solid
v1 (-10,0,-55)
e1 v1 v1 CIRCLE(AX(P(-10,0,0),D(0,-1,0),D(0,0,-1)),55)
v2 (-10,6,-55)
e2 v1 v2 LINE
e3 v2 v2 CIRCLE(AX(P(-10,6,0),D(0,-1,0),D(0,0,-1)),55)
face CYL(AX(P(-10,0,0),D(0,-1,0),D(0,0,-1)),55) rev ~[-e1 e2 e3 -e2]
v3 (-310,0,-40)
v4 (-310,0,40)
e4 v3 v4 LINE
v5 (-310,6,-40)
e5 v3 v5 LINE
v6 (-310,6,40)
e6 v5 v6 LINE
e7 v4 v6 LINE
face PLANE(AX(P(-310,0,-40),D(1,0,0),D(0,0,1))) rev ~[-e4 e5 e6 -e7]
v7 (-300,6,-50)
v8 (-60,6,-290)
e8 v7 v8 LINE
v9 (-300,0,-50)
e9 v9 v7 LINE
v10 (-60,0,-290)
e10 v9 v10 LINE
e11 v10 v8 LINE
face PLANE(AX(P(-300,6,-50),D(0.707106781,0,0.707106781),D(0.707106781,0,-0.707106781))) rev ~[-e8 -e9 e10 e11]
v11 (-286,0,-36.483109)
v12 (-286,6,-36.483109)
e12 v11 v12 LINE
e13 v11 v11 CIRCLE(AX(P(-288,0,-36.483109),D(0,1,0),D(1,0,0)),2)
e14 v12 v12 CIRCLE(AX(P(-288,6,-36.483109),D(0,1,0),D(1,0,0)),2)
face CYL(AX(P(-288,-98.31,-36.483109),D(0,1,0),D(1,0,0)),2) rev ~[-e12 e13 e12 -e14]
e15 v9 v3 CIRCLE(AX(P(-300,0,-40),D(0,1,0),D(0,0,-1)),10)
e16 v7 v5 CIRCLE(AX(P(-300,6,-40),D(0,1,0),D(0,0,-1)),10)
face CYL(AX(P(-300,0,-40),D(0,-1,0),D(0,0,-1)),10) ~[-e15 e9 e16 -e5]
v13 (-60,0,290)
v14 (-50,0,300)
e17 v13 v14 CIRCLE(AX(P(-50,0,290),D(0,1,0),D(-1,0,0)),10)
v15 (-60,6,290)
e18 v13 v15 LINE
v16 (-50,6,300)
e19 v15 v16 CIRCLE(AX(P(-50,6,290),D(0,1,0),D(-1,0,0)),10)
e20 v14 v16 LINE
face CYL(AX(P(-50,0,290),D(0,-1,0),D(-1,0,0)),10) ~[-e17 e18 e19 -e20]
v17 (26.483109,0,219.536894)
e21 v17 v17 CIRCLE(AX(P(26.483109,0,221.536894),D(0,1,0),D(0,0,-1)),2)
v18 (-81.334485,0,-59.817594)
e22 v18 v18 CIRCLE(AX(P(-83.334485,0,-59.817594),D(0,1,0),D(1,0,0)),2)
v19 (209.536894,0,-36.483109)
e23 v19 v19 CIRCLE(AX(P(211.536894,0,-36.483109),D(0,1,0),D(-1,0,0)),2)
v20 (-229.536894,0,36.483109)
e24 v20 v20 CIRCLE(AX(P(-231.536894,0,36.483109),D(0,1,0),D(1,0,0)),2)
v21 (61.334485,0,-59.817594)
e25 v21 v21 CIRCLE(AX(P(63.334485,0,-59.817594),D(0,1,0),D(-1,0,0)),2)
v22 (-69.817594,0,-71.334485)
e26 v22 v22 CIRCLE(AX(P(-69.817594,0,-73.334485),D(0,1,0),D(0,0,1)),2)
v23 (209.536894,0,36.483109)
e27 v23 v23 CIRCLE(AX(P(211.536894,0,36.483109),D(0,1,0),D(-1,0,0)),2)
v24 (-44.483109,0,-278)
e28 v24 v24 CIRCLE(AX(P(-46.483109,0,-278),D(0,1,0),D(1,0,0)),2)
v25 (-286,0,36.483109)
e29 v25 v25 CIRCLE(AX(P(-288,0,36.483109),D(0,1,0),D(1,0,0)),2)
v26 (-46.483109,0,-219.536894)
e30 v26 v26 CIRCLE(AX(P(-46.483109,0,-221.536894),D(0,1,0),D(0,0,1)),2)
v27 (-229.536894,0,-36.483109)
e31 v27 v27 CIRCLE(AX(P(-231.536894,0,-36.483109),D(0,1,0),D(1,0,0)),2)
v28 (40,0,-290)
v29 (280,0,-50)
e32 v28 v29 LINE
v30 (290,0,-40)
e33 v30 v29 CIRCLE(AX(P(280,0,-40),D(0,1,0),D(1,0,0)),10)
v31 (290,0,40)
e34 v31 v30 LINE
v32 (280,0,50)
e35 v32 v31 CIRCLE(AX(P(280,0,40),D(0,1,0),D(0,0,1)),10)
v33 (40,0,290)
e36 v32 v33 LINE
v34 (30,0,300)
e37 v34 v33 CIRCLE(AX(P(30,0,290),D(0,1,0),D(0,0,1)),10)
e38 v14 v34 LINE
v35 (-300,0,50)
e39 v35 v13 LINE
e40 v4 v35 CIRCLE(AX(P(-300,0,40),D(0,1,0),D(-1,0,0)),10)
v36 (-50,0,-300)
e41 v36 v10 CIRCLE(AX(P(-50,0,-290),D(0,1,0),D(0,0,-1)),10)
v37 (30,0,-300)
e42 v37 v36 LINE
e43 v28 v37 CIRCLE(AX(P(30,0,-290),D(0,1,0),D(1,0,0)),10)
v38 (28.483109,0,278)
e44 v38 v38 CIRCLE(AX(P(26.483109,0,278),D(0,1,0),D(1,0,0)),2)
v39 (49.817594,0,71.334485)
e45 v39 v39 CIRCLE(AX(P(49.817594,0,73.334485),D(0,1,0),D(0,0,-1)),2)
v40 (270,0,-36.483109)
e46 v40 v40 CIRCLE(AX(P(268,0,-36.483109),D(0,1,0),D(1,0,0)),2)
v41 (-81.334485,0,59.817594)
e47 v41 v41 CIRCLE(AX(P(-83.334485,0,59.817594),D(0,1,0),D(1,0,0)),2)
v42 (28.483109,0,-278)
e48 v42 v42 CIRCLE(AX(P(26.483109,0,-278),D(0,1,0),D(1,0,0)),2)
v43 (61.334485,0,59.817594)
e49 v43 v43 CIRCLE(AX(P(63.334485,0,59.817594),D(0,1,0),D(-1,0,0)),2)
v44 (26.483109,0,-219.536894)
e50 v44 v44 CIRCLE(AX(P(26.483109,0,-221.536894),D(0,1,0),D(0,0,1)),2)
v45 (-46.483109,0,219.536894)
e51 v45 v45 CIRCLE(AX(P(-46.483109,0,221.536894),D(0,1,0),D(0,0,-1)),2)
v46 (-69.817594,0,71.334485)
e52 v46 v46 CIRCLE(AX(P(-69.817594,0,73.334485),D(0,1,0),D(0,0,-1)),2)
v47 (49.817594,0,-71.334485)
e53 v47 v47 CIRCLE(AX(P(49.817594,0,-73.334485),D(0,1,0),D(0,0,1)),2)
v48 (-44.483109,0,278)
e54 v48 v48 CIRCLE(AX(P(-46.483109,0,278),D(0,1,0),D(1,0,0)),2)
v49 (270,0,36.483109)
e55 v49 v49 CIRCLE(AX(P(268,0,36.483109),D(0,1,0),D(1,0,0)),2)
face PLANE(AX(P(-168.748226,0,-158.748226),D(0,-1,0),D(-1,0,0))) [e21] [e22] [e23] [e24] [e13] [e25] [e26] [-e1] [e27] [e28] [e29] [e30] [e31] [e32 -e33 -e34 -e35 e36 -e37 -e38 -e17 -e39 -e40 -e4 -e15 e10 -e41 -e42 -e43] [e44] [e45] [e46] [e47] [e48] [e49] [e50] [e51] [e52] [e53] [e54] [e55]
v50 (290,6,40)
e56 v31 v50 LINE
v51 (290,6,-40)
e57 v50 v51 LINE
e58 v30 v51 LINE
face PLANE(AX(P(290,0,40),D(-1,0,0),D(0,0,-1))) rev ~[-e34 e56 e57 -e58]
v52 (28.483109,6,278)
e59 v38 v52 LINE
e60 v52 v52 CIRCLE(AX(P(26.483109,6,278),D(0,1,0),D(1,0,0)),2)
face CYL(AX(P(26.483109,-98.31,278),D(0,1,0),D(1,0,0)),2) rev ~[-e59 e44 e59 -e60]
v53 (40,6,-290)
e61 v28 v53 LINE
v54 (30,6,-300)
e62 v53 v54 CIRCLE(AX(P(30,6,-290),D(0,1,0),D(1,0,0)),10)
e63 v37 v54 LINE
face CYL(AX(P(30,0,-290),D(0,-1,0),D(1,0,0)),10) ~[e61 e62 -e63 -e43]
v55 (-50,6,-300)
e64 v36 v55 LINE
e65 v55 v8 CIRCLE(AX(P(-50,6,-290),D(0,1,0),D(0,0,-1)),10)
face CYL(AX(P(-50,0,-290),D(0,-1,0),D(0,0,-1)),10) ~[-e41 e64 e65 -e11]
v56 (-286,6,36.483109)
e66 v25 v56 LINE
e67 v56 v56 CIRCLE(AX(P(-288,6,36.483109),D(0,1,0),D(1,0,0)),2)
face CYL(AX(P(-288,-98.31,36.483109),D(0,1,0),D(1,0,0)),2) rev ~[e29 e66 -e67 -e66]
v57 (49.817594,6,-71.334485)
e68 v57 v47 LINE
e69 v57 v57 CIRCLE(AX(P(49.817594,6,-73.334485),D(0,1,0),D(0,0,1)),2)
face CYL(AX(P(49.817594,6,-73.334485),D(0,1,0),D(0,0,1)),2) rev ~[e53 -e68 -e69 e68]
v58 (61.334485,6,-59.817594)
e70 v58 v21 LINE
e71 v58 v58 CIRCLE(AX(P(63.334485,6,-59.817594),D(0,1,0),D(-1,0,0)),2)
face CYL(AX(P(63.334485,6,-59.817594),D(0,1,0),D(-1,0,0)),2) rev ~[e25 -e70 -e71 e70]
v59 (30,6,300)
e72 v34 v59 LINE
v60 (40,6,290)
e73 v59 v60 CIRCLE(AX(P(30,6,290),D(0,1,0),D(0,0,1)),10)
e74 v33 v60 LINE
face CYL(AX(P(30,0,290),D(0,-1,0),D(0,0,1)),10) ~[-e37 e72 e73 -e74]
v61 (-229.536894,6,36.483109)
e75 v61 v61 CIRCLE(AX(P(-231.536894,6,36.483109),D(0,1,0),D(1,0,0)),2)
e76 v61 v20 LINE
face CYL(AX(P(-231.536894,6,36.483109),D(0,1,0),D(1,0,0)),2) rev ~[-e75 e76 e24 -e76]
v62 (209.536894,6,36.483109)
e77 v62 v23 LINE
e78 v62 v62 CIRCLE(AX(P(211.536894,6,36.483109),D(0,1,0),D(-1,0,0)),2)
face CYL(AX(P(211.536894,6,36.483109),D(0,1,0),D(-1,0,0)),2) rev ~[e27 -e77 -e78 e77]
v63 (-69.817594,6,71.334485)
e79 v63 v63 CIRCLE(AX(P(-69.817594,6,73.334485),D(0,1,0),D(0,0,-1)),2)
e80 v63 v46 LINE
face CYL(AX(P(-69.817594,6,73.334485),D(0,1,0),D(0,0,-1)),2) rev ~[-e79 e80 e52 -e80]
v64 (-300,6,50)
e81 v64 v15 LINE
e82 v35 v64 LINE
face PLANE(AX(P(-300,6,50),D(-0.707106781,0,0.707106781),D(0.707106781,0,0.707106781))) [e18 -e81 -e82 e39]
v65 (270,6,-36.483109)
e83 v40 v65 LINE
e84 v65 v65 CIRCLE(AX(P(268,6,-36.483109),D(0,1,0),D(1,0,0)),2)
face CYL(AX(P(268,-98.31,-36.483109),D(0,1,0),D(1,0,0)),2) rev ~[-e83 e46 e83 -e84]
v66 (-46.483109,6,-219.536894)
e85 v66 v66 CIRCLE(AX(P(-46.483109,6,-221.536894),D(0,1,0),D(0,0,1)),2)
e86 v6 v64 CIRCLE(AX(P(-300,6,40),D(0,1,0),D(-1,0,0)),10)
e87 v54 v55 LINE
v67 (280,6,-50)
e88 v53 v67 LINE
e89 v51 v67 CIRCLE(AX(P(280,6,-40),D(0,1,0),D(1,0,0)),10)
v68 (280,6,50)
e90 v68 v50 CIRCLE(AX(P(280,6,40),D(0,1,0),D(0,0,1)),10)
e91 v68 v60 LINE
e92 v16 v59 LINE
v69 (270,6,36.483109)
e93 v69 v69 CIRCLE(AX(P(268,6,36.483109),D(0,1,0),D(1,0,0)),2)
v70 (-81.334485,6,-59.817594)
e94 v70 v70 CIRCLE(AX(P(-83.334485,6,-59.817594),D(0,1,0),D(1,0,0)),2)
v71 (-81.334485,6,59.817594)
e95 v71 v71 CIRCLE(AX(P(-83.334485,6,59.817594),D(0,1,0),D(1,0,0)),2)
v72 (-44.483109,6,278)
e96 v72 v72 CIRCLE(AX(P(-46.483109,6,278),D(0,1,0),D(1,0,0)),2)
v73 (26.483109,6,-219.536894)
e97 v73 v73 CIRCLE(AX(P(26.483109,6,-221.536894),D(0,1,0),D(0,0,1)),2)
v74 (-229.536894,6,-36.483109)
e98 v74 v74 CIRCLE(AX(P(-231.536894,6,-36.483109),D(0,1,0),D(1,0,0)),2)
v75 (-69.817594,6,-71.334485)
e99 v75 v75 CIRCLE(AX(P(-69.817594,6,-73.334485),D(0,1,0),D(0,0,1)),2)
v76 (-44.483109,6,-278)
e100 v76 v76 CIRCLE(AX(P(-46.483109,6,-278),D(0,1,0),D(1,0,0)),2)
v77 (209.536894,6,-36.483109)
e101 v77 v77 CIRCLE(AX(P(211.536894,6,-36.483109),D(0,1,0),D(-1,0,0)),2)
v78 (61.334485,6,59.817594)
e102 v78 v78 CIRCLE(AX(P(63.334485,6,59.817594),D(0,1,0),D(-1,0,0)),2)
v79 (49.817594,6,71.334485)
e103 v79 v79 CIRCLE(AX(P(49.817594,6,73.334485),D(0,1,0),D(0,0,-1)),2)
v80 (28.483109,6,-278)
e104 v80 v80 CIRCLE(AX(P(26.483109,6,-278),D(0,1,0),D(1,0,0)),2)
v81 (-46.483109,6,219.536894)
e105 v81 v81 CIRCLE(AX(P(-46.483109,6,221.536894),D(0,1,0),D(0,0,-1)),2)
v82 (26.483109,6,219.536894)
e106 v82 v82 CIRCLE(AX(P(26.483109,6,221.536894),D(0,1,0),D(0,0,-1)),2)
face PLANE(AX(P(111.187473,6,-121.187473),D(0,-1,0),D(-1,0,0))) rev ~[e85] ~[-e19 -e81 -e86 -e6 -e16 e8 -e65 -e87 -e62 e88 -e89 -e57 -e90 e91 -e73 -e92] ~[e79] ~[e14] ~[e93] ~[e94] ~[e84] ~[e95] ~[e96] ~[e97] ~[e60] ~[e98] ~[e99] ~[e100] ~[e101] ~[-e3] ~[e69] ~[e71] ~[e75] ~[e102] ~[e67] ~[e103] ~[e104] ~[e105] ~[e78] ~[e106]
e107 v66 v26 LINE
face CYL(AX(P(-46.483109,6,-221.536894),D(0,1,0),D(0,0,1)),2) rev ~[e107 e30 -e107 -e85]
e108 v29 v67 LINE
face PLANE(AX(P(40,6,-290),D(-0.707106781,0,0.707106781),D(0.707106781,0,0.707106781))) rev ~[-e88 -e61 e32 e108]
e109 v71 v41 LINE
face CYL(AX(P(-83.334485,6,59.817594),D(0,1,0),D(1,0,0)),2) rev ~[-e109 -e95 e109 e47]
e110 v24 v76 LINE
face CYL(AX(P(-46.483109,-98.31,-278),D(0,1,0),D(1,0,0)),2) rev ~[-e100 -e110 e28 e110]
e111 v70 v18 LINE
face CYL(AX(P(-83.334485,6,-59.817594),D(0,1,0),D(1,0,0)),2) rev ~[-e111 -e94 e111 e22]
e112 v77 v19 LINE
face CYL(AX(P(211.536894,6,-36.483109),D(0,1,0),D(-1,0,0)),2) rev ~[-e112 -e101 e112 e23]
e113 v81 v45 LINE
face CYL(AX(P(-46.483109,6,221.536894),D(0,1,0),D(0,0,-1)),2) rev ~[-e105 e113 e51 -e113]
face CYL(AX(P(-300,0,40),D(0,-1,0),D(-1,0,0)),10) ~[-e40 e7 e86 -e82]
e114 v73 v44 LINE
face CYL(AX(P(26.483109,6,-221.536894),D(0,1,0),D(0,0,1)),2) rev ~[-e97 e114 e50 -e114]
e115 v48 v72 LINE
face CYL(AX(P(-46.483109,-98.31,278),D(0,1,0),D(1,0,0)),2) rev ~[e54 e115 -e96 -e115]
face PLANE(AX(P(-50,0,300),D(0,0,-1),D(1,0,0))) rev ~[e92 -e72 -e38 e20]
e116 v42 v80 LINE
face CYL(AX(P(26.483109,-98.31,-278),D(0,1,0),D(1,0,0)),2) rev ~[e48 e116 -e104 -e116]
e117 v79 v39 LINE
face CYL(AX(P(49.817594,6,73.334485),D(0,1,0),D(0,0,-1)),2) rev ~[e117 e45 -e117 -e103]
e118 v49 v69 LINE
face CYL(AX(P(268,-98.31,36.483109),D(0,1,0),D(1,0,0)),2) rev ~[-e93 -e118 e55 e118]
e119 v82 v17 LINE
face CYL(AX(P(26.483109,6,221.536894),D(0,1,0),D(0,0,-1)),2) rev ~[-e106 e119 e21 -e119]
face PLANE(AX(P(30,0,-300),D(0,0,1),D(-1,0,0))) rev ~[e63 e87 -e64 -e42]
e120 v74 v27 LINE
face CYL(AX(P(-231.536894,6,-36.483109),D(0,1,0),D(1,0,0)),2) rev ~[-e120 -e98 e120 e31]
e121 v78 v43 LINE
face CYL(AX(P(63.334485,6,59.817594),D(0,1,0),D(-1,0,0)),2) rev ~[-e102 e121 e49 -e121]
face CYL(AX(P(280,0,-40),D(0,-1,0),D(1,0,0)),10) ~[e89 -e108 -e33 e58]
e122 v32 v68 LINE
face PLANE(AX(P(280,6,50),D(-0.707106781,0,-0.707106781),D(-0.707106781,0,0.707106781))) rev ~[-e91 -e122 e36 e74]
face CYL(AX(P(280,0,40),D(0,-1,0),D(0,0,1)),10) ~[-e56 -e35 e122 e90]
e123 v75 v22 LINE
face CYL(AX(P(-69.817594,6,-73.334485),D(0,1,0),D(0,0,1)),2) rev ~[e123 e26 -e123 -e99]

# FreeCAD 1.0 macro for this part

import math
import FreeCAD as App
import Part
import Sketcher
Q = App.Units.Quantity


def add_polygon(sketch, points):
    """Adds a closed chain of lines whose ends are joined by coincident constraints."""
    first, n = sketch.GeometryCount, len(points)
    for a, b in zip(points, points[1:] + points[:1]):
        sketch.addGeometry(Part.LineSegment(App.Vector(*a, 0), App.Vector(*b, 0)), False)
    for i in range(n):
        sketch.addConstraint(Sketcher.Constraint("Coincident", first + i, 2, first + (i + 1) % n, 1))

doc = App.newDocument("Part")
body = doc.addObject("PartDesign::Body", "Body")

# Sketch on XZ plane
sketch1 = body.newObject("Sketcher::SketchObject", "Sketch")
sketch1.AttachmentSupport = (doc.getObject("XZ_Plane"), [""])
sketch1.MapMode = "FlatFace"
sketch1.addGeometry([
    Part.LineSegment(App.Vector(-110, -50, 0), App.Vector(-300, -50, 0)),  # 0
    Part.ArcOfCircle(Part.Circle(App.Vector(-300, -40, 0), App.Vector(0, 0, 1), 10), math.radians(180), math.radians(270)),  # 1
    Part.LineSegment(App.Vector(-310, -40, 0), App.Vector(-310, 40, 0)),  # 2
    Part.ArcOfCircle(Part.Circle(App.Vector(-300, 40, 0), App.Vector(0, 0, 1), 10), math.radians(90), math.radians(180)),  # 3
    Part.LineSegment(App.Vector(-300, 50, 0), App.Vector(-110, 50, 0)),  # 4
    Part.LineSegment(App.Vector(-110, 50, 0), App.Vector(-60, 100, 0)),  # 5
    Part.LineSegment(App.Vector(-60, 100, 0), App.Vector(-60, 290, 0)),  # 6
    Part.ArcOfCircle(Part.Circle(App.Vector(-50, 290, 0), App.Vector(0, 0, 1), 10), math.radians(90), math.radians(180)),  # 7
    Part.LineSegment(App.Vector(-50, 300, 0), App.Vector(30, 300, 0)),  # 8
    Part.ArcOfCircle(Part.Circle(App.Vector(30, 290, 0), App.Vector(0, 0, 1), 10), math.radians(0), math.radians(90)),  # 9
    Part.LineSegment(App.Vector(40, 290, 0), App.Vector(40, 100, 0)),  # 10
    Part.LineSegment(App.Vector(40, 100, 0), App.Vector(90, 50, 0)),  # 11
    Part.LineSegment(App.Vector(90, 50, 0), App.Vector(280, 50, 0)),  # 12
    Part.ArcOfCircle(Part.Circle(App.Vector(280, 40, 0), App.Vector(0, 0, 1), 10), math.radians(0), math.radians(90)),  # 13
    Part.LineSegment(App.Vector(290, 40, 0), App.Vector(290, -40, 0)),  # 14
    Part.ArcOfCircle(Part.Circle(App.Vector(280, -40, 0), App.Vector(0, 0, 1), 10), math.radians(-90), math.radians(0)),  # 15
    Part.LineSegment(App.Vector(280, -50, 0), App.Vector(90, -50, 0)),  # 16
    Part.LineSegment(App.Vector(90, -50, 0), App.Vector(40, -100, 0)),  # 17
    Part.LineSegment(App.Vector(40, -100, 0), App.Vector(40, -290, 0)),  # 18
    Part.ArcOfCircle(Part.Circle(App.Vector(30, -290, 0), App.Vector(0, 0, 1), 10), math.radians(-90), math.radians(0)),  # 19
    Part.LineSegment(App.Vector(30, -300, 0), App.Vector(-50, -300, 0)),  # 20
    Part.ArcOfCircle(Part.Circle(App.Vector(-50, -290, 0), App.Vector(0, 0, 1), 10), math.radians(180), math.radians(270)),  # 21
    Part.LineSegment(App.Vector(-60, -290, 0), App.Vector(-60, -100, 0)),  # 22
    Part.LineSegment(App.Vector(-60, -100, 0), App.Vector(-110, -50, 0)),  # 23
], False)
sketch1.addConstraint([
    Sketcher.Constraint("Tangent", 0, 2, 1, 2),
    Sketcher.Constraint("Tangent", 1, 1, 2, 1),
    Sketcher.Constraint("Tangent", 2, 2, 3, 2),
    Sketcher.Constraint("Tangent", 3, 1, 4, 1),
    Sketcher.Constraint("Coincident", 4, 2, 5, 1),
    Sketcher.Constraint("Coincident", 5, 2, 6, 1),
    Sketcher.Constraint("Tangent", 6, 2, 7, 2),
    Sketcher.Constraint("Tangent", 7, 1, 8, 1),
    Sketcher.Constraint("Tangent", 8, 2, 9, 2),
    Sketcher.Constraint("Tangent", 9, 1, 10, 1),
    Sketcher.Constraint("Coincident", 10, 2, 11, 1),
    Sketcher.Constraint("Coincident", 11, 2, 12, 1),
    Sketcher.Constraint("Tangent", 12, 2, 13, 2),
    Sketcher.Constraint("Tangent", 13, 1, 14, 1),
    Sketcher.Constraint("Tangent", 14, 2, 15, 2),
    Sketcher.Constraint("Tangent", 15, 1, 16, 1),
    Sketcher.Constraint("Coincident", 16, 2, 17, 1),
    Sketcher.Constraint("Coincident", 17, 2, 18, 1),
    Sketcher.Constraint("Tangent", 18, 2, 19, 2),
    Sketcher.Constraint("Tangent", 19, 1, 20, 1),
    Sketcher.Constraint("Tangent", 20, 2, 21, 2),
    Sketcher.Constraint("Tangent", 21, 1, 22, 1),
    Sketcher.Constraint("Coincident", 22, 2, 23, 1),
    Sketcher.Constraint("Coincident", 23, 2, 0, 1),
    Sketcher.Constraint("Horizontal", 0),
    Sketcher.Constraint("Vertical", 2),
    Sketcher.Constraint("Horizontal", 4),
    Sketcher.Constraint("Vertical", 6),
    Sketcher.Constraint("Horizontal", 8),
    Sketcher.Constraint("Vertical", 10),
    Sketcher.Constraint("Horizontal", 12),
    Sketcher.Constraint("Vertical", 14),
    Sketcher.Constraint("Horizontal", 16),
    Sketcher.Constraint("Vertical", 18),
    Sketcher.Constraint("Horizontal", 20),
    Sketcher.Constraint("Vertical", 22),
    Sketcher.Constraint("Equal", 1, 3),
    Sketcher.Constraint("Equal", 3, 7),
    Sketcher.Constraint("Equal", 7, 9),
    Sketcher.Constraint("Equal", 9, 13),
    Sketcher.Constraint("Equal", 13, 15),
    Sketcher.Constraint("Equal", 15, 19),
    Sketcher.Constraint("Equal", 19, 21),
    Sketcher.Constraint("Symmetric", 9, 3, 19, 3, -1),
    Sketcher.Constraint("Symmetric", 11, 2, 16, 2, -1),
    Sketcher.Constraint("Symmetric", 5, 2, 22, 2, -1),
    Sketcher.Constraint("Symmetric", 4, 2, 23, 2, -1),
    Sketcher.Constraint("Perpendicular", 5, 11),
    Sketcher.Constraint("Perpendicular", 11, 17),
    Sketcher.Constraint("Perpendicular", 17, 23),
    Sketcher.Constraint("Horizontal", 3, 3, 13, 3),
    Sketcher.Constraint("Horizontal", 5, 2, 10, 2),
    Sketcher.Constraint("Equal", 4, 12),
    Sketcher.Constraint("Equal", 20, 2),
    Sketcher.Constraint("Equal", 16, 6),
    Sketcher.Constraint("Radius", 1, Q("10 mm")),
    Sketcher.Constraint("DistanceX", 0, 2, 0, 1, Q("190 mm")),
    Sketcher.Constraint("DistanceX", 8, 1, 8, 2, Q("80 mm")),
    Sketcher.Constraint("DistanceX", 1, 3, -1, 1, Q("300 mm")),
    Sketcher.Constraint("DistanceX", 7, 3, -1, 1, Q("50 mm")),
])
pad1 = body.newObject("PartDesign::Pad", "Pad")
pad1.Profile = sketch1
pad1.Length = 6
pad1.Reversed = True

# Sketch on XZ plane
sketch2 = body.newObject("Sketcher::SketchObject", "Sketch001")
sketch2.AttachmentSupport = (doc.getObject("XZ_Plane"), [""])
sketch2.MapMode = "FlatFace"
sketch2.AttachmentOffset = App.Placement(App.Vector(0, 0, -6), App.Rotation())
sketch2.addGeometry(Part.Circle(App.Vector(-10, 0, 0), App.Vector(0, 0, 1), 0.5), False)
sketch2.addConstraint([
    Sketcher.Constraint("PointOnObject", 0, 3, -1),
    Sketcher.Constraint("DistanceX", 0, 3, -1, 1, Q("10 mm")),
    Sketcher.Constraint("Diameter", 0, Q("0.991307 mm")),
])
pocket1 = body.newObject("PartDesign::Pocket", "Pocket")
pocket1.Profile = sketch2
pocket1.Length = 10
pocket1.Reversed = True

# Sketch on XZ plane
sketch3 = body.newObject("Sketcher::SketchObject", "Sketch002")
sketch3.AttachmentSupport = (doc.getObject("XZ_Plane"), [""])
sketch3.MapMode = "FlatFace"
sketch3.AttachmentOffset = App.Placement(App.Vector(0, 0, -6), App.Rotation())
add_polygon(sketch3, [(-60, -290), (-300, -50), (-250, -50), (-60, -240)])  # lines 0-3
add_polygon(sketch3, [(280, -50), (40, -290), (40, -240), (230, -50)])  # lines 4-7
add_polygon(sketch3, [(40, 290), (280, 50), (230, 49), (40, 240)])  # lines 8-11
add_polygon(sketch3, [(-300, 50), (-60, 290), (-60, 240), (-250, 50)])  # lines 12-15
sketch3.addConstraint([
    Sketcher.Constraint("Horizontal", 1),
    Sketcher.Constraint("Vertical", 3),
    Sketcher.Constraint("Vertical", 5),
    Sketcher.Constraint("Horizontal", 7),
    Sketcher.Constraint("Vertical", 11),
    Sketcher.Constraint("Vertical", 13),
    Sketcher.Constraint("Horizontal", 15),
    Sketcher.Constraint("Symmetric", 7, 2, 8, 2, -1),
    Sketcher.Constraint("Symmetric", 5, 2, 10, 2, -1),
    Sketcher.Constraint("Symmetric", 3, 2, 12, 2, -1),
    Sketcher.Constraint("Symmetric", 1, 2, 14, 2, -1),
    Sketcher.Constraint("Parallel", 0, 2),
    Sketcher.Constraint("Perpendicular", 2, 4),
    Sketcher.Constraint("Parallel", 4, 6),
    Sketcher.Constraint("Perpendicular", 6, 8),
    Sketcher.Constraint("Perpendicular", 8, 12),
    Sketcher.Constraint("Parallel", 12, 14),
    Sketcher.Constraint("Horizontal", 3, 2, 4, 2),
    Sketcher.Constraint("Horizontal", 2, 2, 5, 2),
    Sketcher.Constraint("Horizontal", 1, 2, 6, 2),
    Sketcher.Constraint("Horizontal", 11, 2, 12, 2),
    Sketcher.Constraint("Vertical", 6, 2, 9, 2),
    Sketcher.Constraint("DistanceX", 1, 1, 1, 2, Q("50 mm")),
    Sketcher.Constraint("DistanceX", 0, 2, -1, 1, Q("300 mm")),
    Sketcher.Constraint("DistanceY", 0, 2, -1, 1, Q("50 mm")),
    Sketcher.Constraint("DistanceX", 2, 2, -1, 1, Q("60 mm")),
    Sketcher.Constraint("DistanceX", -1, 1, 4, 2, Q("40 mm")),
    Sketcher.Constraint("Distance", 9, Q("50.008501 mm")),
])
pad2 = body.newObject("PartDesign::Pad", "Pad001")
pad2.Profile = sketch3
pad2.Length = 6

# Sketch on XZ plane
sketch4 = body.newObject("Sketcher::SketchObject", "Sketch003")
sketch4.AttachmentSupport = (doc.getObject("XZ_Plane"), [""])
sketch4.MapMode = "FlatFace"
sketch4.AttachmentOffset = App.Placement(App.Vector(0, 0, -6), App.Rotation())
sketch4.addGeometry([
    Part.Circle(App.Vector(-37.8, -287.8, 0), App.Vector(0, 0, 1), 2),  # 0
    Part.Circle(App.Vector(-37.8, -272.8, 0), App.Vector(0, 0, 1), 2),  # 1
    Part.Circle(App.Vector(-46.5, -221.5, 0), App.Vector(0, 0, 1), 2),  # 2
    Part.Circle(App.Vector(-46.5, -135.1, 0), App.Vector(0, 0, 1), 2),  # 3
    Part.Circle(App.Vector(-69.8, -73.3, 0), App.Vector(0, 0, 1), 2),  # 4
    Part.Circle(App.Vector(49.8, -73.3, 0), App.Vector(0, 0, 1), 2),  # 5
    Part.Circle(App.Vector(26.5, -135.1, 0), App.Vector(0, 0, 1), 2),  # 6
    Part.Circle(App.Vector(26.5, -221.5, 0), App.Vector(0, 0, 1), 2),  # 7
    Part.Circle(App.Vector(191.4, -113.6, 0), App.Vector(0, 0, 1), 2),  # 8
    Part.Circle(App.Vector(128.6, -176.4, 0), App.Vector(0, 0, 1), 2),  # 9
    Part.Circle(App.Vector(17.8, -272.8, 0), App.Vector(0, 0, 1), 2),  # 10
    Part.Circle(App.Vector(17.8, -287.8, 0), App.Vector(0, 0, 1), 2),  # 11
    Part.Circle(App.Vector(-10, 0, 0), App.Vector(0, 0, 1), 4),  # 12
], False)
sketch4.addConstraint([
    Sketcher.Constraint("Equal", 0, 1),
    Sketcher.Constraint("Equal", 1, 2),
    Sketcher.Constraint("Equal", 2, 3),
    Sketcher.Constraint("Equal", 3, 4),
    Sketcher.Constraint("Equal", 4, 5),
    Sketcher.Constraint("Equal", 5, 6),
    Sketcher.Constraint("Equal", 6, 7),
    Sketcher.Constraint("Equal", 7, 8),
    Sketcher.Constraint("Equal", 8, 9),
    Sketcher.Constraint("Equal", 9, 10),
    Sketcher.Constraint("Equal", 10, 11),
    Sketcher.Constraint("PointOnObject", 12, 3, -1),
    Sketcher.Constraint("Horizontal", 4, 3, 5, 3),
    Sketcher.Constraint("Horizontal", 3, 3, 6, 3),
    Sketcher.Constraint("Horizontal", 2, 3, 7, 3),
    Sketcher.Constraint("Horizontal", 1, 3, 10, 3),
    Sketcher.Constraint("Horizontal", 0, 3, 11, 3),
    Sketcher.Constraint("Vertical", 0, 3, 1, 3),
    Sketcher.Constraint("Vertical", 2, 3, 3, 3),
    Sketcher.Constraint("Vertical", 6, 3, 7, 3),
    Sketcher.Constraint("Vertical", 10, 3, 11, 3),
    Sketcher.Constraint("Diameter", 0, Q("4 mm")),
    Sketcher.Constraint("Diameter", 12, Q("8 mm")),
    Sketcher.Constraint("DistanceX", 12, 3, -1, 1, Q("10 mm")),
    Sketcher.Constraint("DistanceY", 0, 3, 1, 3, Q("15 mm")),
    Sketcher.Constraint("DistanceX", 3, 3, 8, 3, Q("237.843499 mm")),
    Sketcher.Constraint("DistanceX", 6, 3, 9, 3, Q("102.156501 mm")),
    Sketcher.Constraint("DistanceX", 2, 3, -1, 1, Q("46.483109 mm")),
    Sketcher.Constraint("DistanceY", 3, 3, -1, 1, Q("135.067938 mm")),
    Sketcher.Constraint("DistanceX", -1, 1, 6, 3, Q("26.483109 mm")),
    Sketcher.Constraint("DistanceY", 8, 3, -1, 1, Q("113.63961 mm")),
    Sketcher.Constraint("DistanceY", 9, 3, -1, 1, Q("176.36039 mm")),
    Sketcher.Constraint("DistanceY", 1, 3, 2, 3, Q("51.300082 mm")),
    Sketcher.Constraint("DistanceY", 2, 3, 4, 3, Q("148.202409 mm")),
    Sketcher.Constraint("DistanceX", 4, 3, 5, 3, Q("119.635188 mm")),
    Sketcher.Constraint("DistanceX", 1, 3, 5, 3, Q("87.641741 mm")),
    Sketcher.Constraint("DistanceX", 0, 3, -1, 1, Q("37.824147 mm")),
    Sketcher.Constraint("DistanceY", 0, 3, -1, 1, Q("287.836976 mm")),
    Sketcher.Constraint("DistanceX", -1, 1, 10, 3, Q("17.824147 mm")),
])
pocket2 = body.newObject("PartDesign::Pocket", "Pocket001")
pocket2.Profile = sketch4
pocket2.Length = 12
pocket2.Reversed = True
doc.recompute()

datumline = body.newObject("PartDesign::Line", "DatumLine")
datumline.Placement = App.Placement(App.Vector(-10, 0, 0), App.Rotation(App.Vector(0, 0, 1), App.Vector(0, 1, 0)))
polarpattern = body.newObject("PartDesign::PolarPattern", "PolarPattern")
polarpattern.Originals = [pocket2]
polarpattern.Axis = (datumline, [""])
polarpattern.Angle = 360
polarpattern.Occurrences = 4
body.Tip = polarpattern

# Sketch on XZ plane
sketch5 = body.newObject("Sketcher::SketchObject", "Sketch004")
sketch5.AttachmentSupport = (doc.getObject("XZ_Plane"), [""])
sketch5.MapMode = "FlatFace"
sketch5.AttachmentOffset = App.Placement(App.Vector(0, 0, -6), App.Rotation())
add_polygon(sketch5, [(230, -50), (40, -240), (40, -100), (90, -50)])  # lines 0-3
add_polygon(sketch5, [(229, 50), (90, 50), (40, 100), (40, 240)])  # lines 4-7
add_polygon(sketch5, [(-60, -100), (-60, -240), (-250, -50), (-110, -50)])  # lines 8-11
add_polygon(sketch5, [(-60, 100), (-110, 50), (-250, 50), (-60, 240)])  # lines 12-15
sketch5.addConstraint([
    Sketcher.Constraint("Vertical", 1),
    Sketcher.Constraint("Horizontal", 3),
    Sketcher.Constraint("Horizontal", 4),
    Sketcher.Constraint("Vertical", 6),
    Sketcher.Constraint("Vertical", 8),
    Sketcher.Constraint("Horizontal", 10),
    Sketcher.Constraint("Horizontal", 13),
    Sketcher.Constraint("Vertical", 15),
    Sketcher.Constraint("Symmetric", 2, 2, 4, 2, -1),
    Sketcher.Constraint("Symmetric", 1, 2, 5, 2, -1),
    Sketcher.Constraint("Symmetric", 10, 2, 12, 2, -1),
    Sketcher.Constraint("Symmetric", 8, 2, 14, 2, -1),
    Sketcher.Constraint("Parallel", 0, 2),
    Sketcher.Constraint("Perpendicular", 2, 5),
    Sketcher.Constraint("Parallel", 5, 9),
    Sketcher.Constraint("Parallel", 9, 11),
    Sketcher.Constraint("Perpendicular", 11, 12),
    Sketcher.Constraint("Parallel", 12, 14),
    Sketcher.Constraint("Horizontal", 0, 2, 8, 2),
    Sketcher.Constraint("Horizontal", 3, 2, 9, 2),
    Sketcher.Constraint("Horizontal", 1, 2, 11, 2),
    Sketcher.Constraint("Horizontal", 6, 2, 14, 2),
    Sketcher.Constraint("DistanceX", 3, 1, 3, 2, Q("140 mm")),
    Sketcher.Constraint("DistanceX", -1, 1, 0, 2, Q("40 mm")),
    Sketcher.Constraint("DistanceY", 0, 2, -1, 1, Q("240 mm")),
    Sketcher.Constraint("DistanceX", -1, 1, 2, 2, Q("90 mm")),
    Sketcher.Constraint("DistanceX", 8, 2, -1, 1, Q("60 mm")),
    Sketcher.Constraint("Distance", 7, Q("268.052538 mm")),
])
pad3 = body.newObject("PartDesign::Pad", "Pad002")
pad3.Profile = sketch5
pad3.Length = 6

# Sketch on XZ plane
sketch6 = body.newObject("Sketcher::SketchObject", "Sketch005")
sketch6.AttachmentSupport = (doc.getObject("XZ_Plane"), [""])
sketch6.MapMode = "FlatFace"
sketch6.AttachmentOffset = App.Placement(App.Vector(0, 0, -6), App.Rotation())
sketch6.addGeometry([
    Part.Circle(App.Vector(-29.1, -23.8, 0), App.Vector(0, 0, 1), 2),
    Part.Circle(App.Vector(32.7, -23.8, 0), App.Vector(0, 0, 1), 2),
    Part.Circle(App.Vector(31.4, 32.5, 0), App.Vector(0, 0, 1), 2),
    Part.Circle(App.Vector(-30.4, 32.5, 0), App.Vector(0, 0, 1), 2),
], False)
sketch6.addConstraint([
    Sketcher.Constraint("Equal", 0, 1),
    Sketcher.Constraint("Equal", 1, 2),
    Sketcher.Constraint("Equal", 2, 3),
    Sketcher.Constraint("Horizontal", 0, 3, 1, 3),
    Sketcher.Constraint("Horizontal", 2, 3, 3, 3),
    Sketcher.Constraint("Diameter", 0, Q("4 mm")),
    Sketcher.Constraint("DistanceY", -1, 1, 2, 3, Q("32.5 mm")),
    Sketcher.Constraint("DistanceX", 2, 3, 1, 3, Q("1.329799 mm")),
    Sketcher.Constraint("DistanceX", 3, 3, 0, 3, Q("1.329799 mm")),
    Sketcher.Constraint("DistanceX", 0, 3, 1, 3, Q("61.81365 mm")),
    Sketcher.Constraint("DistanceX", 0, 3, -1, 1, Q("29.100763 mm")),
    Sketcher.Constraint("DistanceY", 0, 3, -1, 1, Q("23.781275 mm")),
])
doc.recompute()
hole = body.newObject("PartDesign::Hole", "Hole")
hole.Profile = sketch6
hole.ThreadType = "None"
hole.Diameter = 4
hole.DepthType = "Dimension"
hole.Depth = 25.4
hole.DrillPoint = "Angled"
hole.DrillPointAngle = 118
hole.Reversed = True

# Sketch on XZ plane
sketch7 = body.newObject("Sketcher::SketchObject", "Sketch006")
sketch7.AttachmentSupport = (doc.getObject("XZ_Plane"), [""])
sketch7.MapMode = "FlatFace"
sketch7.addGeometry([
    Part.Circle(App.Vector(-46.5, 278, 0), App.Vector(0, 0, 1), 2),  # 0
    Part.Circle(App.Vector(26.5, 278, 0), App.Vector(0, 0, 1), 2),  # 1
    Part.Circle(App.Vector(268, 36.5, 0), App.Vector(0, 0, 1), 2),  # 2
    Part.Circle(App.Vector(268, -36.5, 0), App.Vector(0, 0, 1), 2),  # 3
    Part.Circle(App.Vector(26.5, -278, 0), App.Vector(0, 0, 1), 2),  # 4
    Part.Circle(App.Vector(-46.5, -278, 0), App.Vector(0, 0, 1), 2),  # 5
    Part.Circle(App.Vector(-288, -36.5, 0), App.Vector(0, 0, 1), 2),  # 6
    Part.Circle(App.Vector(-288, 36.5, 0), App.Vector(0, 0, 1), 2),  # 7
], False)
sketch7.addConstraint([
    Sketcher.Constraint("Equal", 0, 1),
    Sketcher.Constraint("Equal", 1, 2),
    Sketcher.Constraint("Equal", 2, 3),
    Sketcher.Constraint("Equal", 3, 4),
    Sketcher.Constraint("Equal", 4, 5),
    Sketcher.Constraint("Equal", 5, 6),
    Sketcher.Constraint("Equal", 6, 7),
    Sketcher.Constraint("Symmetric", 2, 3, 3, 3, -1),
    Sketcher.Constraint("Symmetric", 1, 3, 4, 3, -1),
    Sketcher.Constraint("Symmetric", 0, 3, 5, 3, -1),
    Sketcher.Constraint("Symmetric", 6, 3, 7, 3, -1),
    Sketcher.Constraint("Horizontal", 0, 3, 1, 3),
    Sketcher.Constraint("Horizontal", 3, 3, 6, 3),
    Sketcher.Constraint("Diameter", 0, Q("4 mm")),
    Sketcher.Constraint("DistanceY", -1, 1, 0, 3, Q("278 mm")),
    Sketcher.Constraint("DistanceX", -1, 1, 2, 3, Q("268 mm")),
    Sketcher.Constraint("DistanceX", 6, 3, -1, 1, Q("288 mm")),
    Sketcher.Constraint("DistanceX", 0, 3, -1, 1, Q("46.483109 mm")),
    Sketcher.Constraint("DistanceX", -1, 1, 1, 3, Q("26.483109 mm")),
    Sketcher.Constraint("DistanceY", -1, 1, 2, 3, Q("36.483109 mm")),
])
doc.recompute()
hole2 = body.newObject("PartDesign::Hole", "Hole001")
hole2.Profile = sketch7
hole2.ThreadType = "None"
hole2.Diameter = 4
hole2.DepthType = "Dimension"
hole2.Depth = 98.31
hole2.DrillPoint = "Angled"
hole2.DrillPointAngle = 118

# Sketch on XZ plane
sketch8 = body.newObject("Sketcher::SketchObject", "Sketch007")
sketch8.AttachmentSupport = (doc.getObject("XZ_Plane"), [""])
sketch8.MapMode = "FlatFace"
sketch8.addGeometry(Part.Circle(App.Vector(-10, 0, 0), App.Vector(0, 0, 1), 55), False)
sketch8.addConstraint([
    Sketcher.Constraint("PointOnObject", 0, 3, -1),
    Sketcher.Constraint("Diameter", 0, Q("110 mm")),
    Sketcher.Constraint("DistanceX", 0, 3, -1, 1, Q("10 mm")),
])
pocket3 = body.newObject("PartDesign::Pocket", "Pocket002")
pocket3.Profile = sketch8
pocket3.Length = 22

# Sketch on XZ plane
sketch9 = body.newObject("Sketcher::SketchObject", "Sketch008")
sketch9.AttachmentSupport = (doc.getObject("XZ_Plane"), [""])
sketch9.MapMode = "FlatFace"
sketch9.addGeometry([
    Part.Circle(App.Vector(-148.6, 176.4, 0), App.Vector(0, 0, 1), 3.8),  # 0
    Part.Circle(App.Vector(-211.4, 113.6, 0), App.Vector(0, 0, 1), 3.7),  # 1
    Part.Circle(App.Vector(-282.8, 27.8, 0), App.Vector(0, 0, 1), 4),  # 2
    Part.Circle(App.Vector(-297.8, 27.8, 0), App.Vector(0, 0, 1), 3.4),  # 3
    Part.Circle(App.Vector(-297.8, -27.8, 0), App.Vector(0, 0, 1), 2.9),  # 4
    Part.Circle(App.Vector(-282.8, -27.8, 0), App.Vector(0, 0, 1), 2.7),  # 5
    Part.Circle(App.Vector(-145.1, -36.5, 0), App.Vector(0, 0, 1), 3.2),  # 6
    Part.Circle(App.Vector(-145.1, 36.5, 0), App.Vector(0, 0, 1), 3.3),  # 7
    Part.Circle(App.Vector(-186.4, -138.6, 0), App.Vector(0, 0, 1), 3.4),  # 8
    Part.Circle(App.Vector(-123.8, -202.8, 0), App.Vector(0, 0, 1), 5.6),  # 9
    Part.Circle(App.Vector(-37.8, -272.8, 0), App.Vector(0, 0, 1), 3.3),  # 10
    Part.Circle(App.Vector(-37.8, -287.8, 0), App.Vector(0, 0, 1), 3.2),  # 11
    Part.Circle(App.Vector(17.8, -287.8, 0), App.Vector(0, 0, 1), 3.1),  # 12
    Part.Circle(App.Vector(17.8, -272.8, 0), App.Vector(0, 0, 1), 2.9),  # 13
    Part.Circle(App.Vector(26.5, -135.1, 0), App.Vector(0, 0, 1), 3.6),  # 14
    Part.Circle(App.Vector(-46.5, -135.1, 0), App.Vector(0, 0, 1), 3.2),  # 15
    Part.Circle(App.Vector(128.6, -176.4, 0), App.Vector(0, 0, 1), 5.2),  # 16
    Part.Circle(App.Vector(125.1, -37.2, 0), App.Vector(0, 0, 1), 3.2),  # 17
    Part.Circle(App.Vector(190.4, -114, 0), App.Vector(0, 0, 1), 6.2),  # 18
    Part.Circle(App.Vector(125.3, 35.7, 0), App.Vector(0, 0, 1), 3.3),  # 19
    Part.Circle(App.Vector(278, 26.6, 0), App.Vector(0, 0, 1), 4),  # 20
    Part.Circle(App.Vector(262.9, 26.6, 0), App.Vector(0, 0, 1), 4.1),  # 21
    Part.Circle(App.Vector(261.8, -27.8, 0), App.Vector(0, 0, 1), 4.3),  # 22
    Part.Circle(App.Vector(277, -28.7, 0), App.Vector(0, 0, 1), 4.1),  # 23
    Part.Circle(App.Vector(25.5, 134.7, 0), App.Vector(0, 0, 1), 4.5),  # 24
    Part.Circle(App.Vector(-46.1, 134.1, 0), App.Vector(0, 0, 1), 4.9),  # 25
    Part.Circle(App.Vector(103, 200.5, 0), App.Vector(0, 0, 1), 5.5),  # 26
    Part.Circle(App.Vector(165.9, 137.1, 0), App.Vector(0, 0, 1), 7.8),  # 27
    Part.Circle(App.Vector(17.4, 272.2, 0), App.Vector(0, 0, 1), 3.2),  # 28
    Part.Circle(App.Vector(17.2, 287.5, 0), App.Vector(0, 0, 1), 2.9),  # 29
    Part.Circle(App.Vector(-38.3, 286.8, 0), App.Vector(0, 0, 1), 4),  # 30
    Part.Circle(App.Vector(-38.8, 271.7, 0), App.Vector(0, 0, 1), 4.1),  # 31
], False)
sketch9.addConstraint([
    Sketcher.Constraint("Symmetric", 3, 3, 4, 3, -1),
    Sketcher.Constraint("Symmetric", 2, 3, 5, 3, -1),
    Sketcher.Constraint("Horizontal", 2, 3, 3, 3),
    Sketcher.Constraint("Horizontal", 11, 3, 12, 3),
    Sketcher.Constraint("Horizontal", 10, 3, 13, 3),
    Sketcher.Constraint("Horizontal", 14, 3, 15, 3),
    Sketcher.Constraint("Horizontal", 20, 3, 21, 3),
    Sketcher.Constraint("Horizontal", 5, 3, 22, 3),
    Sketcher.Constraint("Vertical", 6, 3, 7, 3),
    Sketcher.Constraint("Vertical", 10, 3, 11, 3),
    Sketcher.Constraint("Vertical", 12, 3, 13, 3),
    Sketcher.Constraint("DistanceX", 3, 3, 2, 3, Q("15 mm")),
    Sketcher.Constraint("DistanceY", 11, 3, 10, 3, Q("15 mm")),
    Sketcher.Constraint("Diameter", 11, Q("6.4353 mm")),
    Sketcher.Constraint("Diameter", 5, Q("5.32572 mm")),
    Sketcher.Constraint("Diameter", 9, Q("11.15363 mm")),
    Sketcher.Constraint("Diameter", 10, Q("6.65443 mm")),
    Sketcher.Constraint("Diameter", 13, Q("5.70071 mm")),
    Sketcher.Constraint("Diameter", 15, Q("6.419471 mm")),
    Sketcher.Constraint("Diameter", 16, Q("10.447261 mm")),
    Sketcher.Constraint("Diameter", 18, Q("12.435149 mm")),
    Sketcher.Constraint("Diameter", 23, Q("8.170611 mm")),
    Sketcher.Constraint("Diameter", 24, Q("8.976171 mm")),
    Sketcher.Constraint("Diameter", 28, Q("6.375139 mm")),
    Sketcher.Constraint("Diameter", 29, Q("5.859569 mm")),
    Sketcher.Constraint("Diameter", 0, Q("7.674455 mm")),
    Sketcher.Constraint("Diameter", 1, Q("7.382494 mm")),
    Sketcher.Constraint("Diameter", 2, Q("8.011555 mm")),
    Sketcher.Constraint("Diameter", 3, Q("6.827565 mm")),
    Sketcher.Constraint("Diameter", 4, Q("5.892573 mm")),
    Sketcher.Constraint("Diameter", 6, Q("6.420584 mm")),
    Sketcher.Constraint("Diameter", 7, Q("6.608446 mm")),
    Sketcher.Constraint("Diameter", 8, Q("6.832554 mm")),
    Sketcher.Constraint("Diameter", 12, Q("6.168304 mm")),
    Sketcher.Constraint("Diameter", 14, Q("7.163307 mm")),
    Sketcher.Constraint("Diameter", 17, Q("6.479993 mm")),
    Sketcher.Constraint("Diameter", 19, Q("6.562965 mm")),
    Sketcher.Constraint("Diameter", 20, Q("8.020934 mm")),
    Sketcher.Constraint("Diameter", 21, Q("8.161663 mm")),
    Sketcher.Constraint("Diameter", 22, Q("8.581476 mm")),
    Sketcher.Constraint("Diameter", 25, Q("9.798233 mm")),
    Sketcher.Constraint("Diameter", 26, Q("10.949556 mm")),
    Sketcher.Constraint("Diameter", 27, Q("15.627543 mm")),
    Sketcher.Constraint("Diameter", 30, Q("8.019213 mm")),
    Sketcher.Constraint("Diameter", 31, Q("8.181603 mm")),
    Sketcher.Constraint("DistanceY", 8, 3, 6, 3, Q("102.156501 mm")),
    Sketcher.Constraint("DistanceX", 6, 3, 9, 3, Q("21.2293 mm")),
    Sketcher.Constraint("DistanceX", 14, 3, 16, 3, Q("102.156501 mm")),
    Sketcher.Constraint("DistanceX", 26, 3, 21, 3, Q("159.871299 mm")),
    Sketcher.Constraint("DistanceY", 27, 3, 28, 3, Q("135.163698 mm")),
    Sketcher.Constraint("DistanceX", 29, 3, 28, 3, Q("0.2329 mm")),
    Sketcher.Constraint("DistanceY", 24, 3, 29, 3, Q("152.880699 mm")),
    Sketcher.Constraint("DistanceY", 28, 3, 30, 3, Q("14.566099 mm")),
    Sketcher.Constraint("DistanceX", 31, 3, 28, 3, Q("56.2454 mm")),
    Sketcher.Constraint("DistanceX", 0, 3, -1, 1, Q("148.63961 mm")),
    Sketcher.Constraint("DistanceY", -1, 1, 0, 3, Q("176.36039 mm")),
    Sketcher.Constraint("DistanceX", 1, 3, -1, 1, Q("211.36039 mm")),
    Sketcher.Constraint("DistanceY", -1, 1, 1, 3, Q("113.63961 mm")),
    Sketcher.Constraint("DistanceX", 6, 3, -1, 1, Q("145.067938 mm")),
    Sketcher.Constraint("DistanceY", 6, 3, -1, 1, Q("36.483109 mm")),
    Sketcher.Constraint("DistanceX", 8, 3, -1, 1, Q("186.36039 mm")),
    Sketcher.Constraint("DistanceX", -1, 1, 14, 3, Q("26.483109 mm")),
    Sketcher.Constraint("DistanceY", 14, 3, -1, 1, Q("135.067938 mm")),
    Sketcher.Constraint("DistanceX", 15, 3, -1, 1, Q("46.483109 mm")),
    Sketcher.Constraint("DistanceY", 16, 3, -1, 1, Q("176.36039 mm")),
    Sketcher.Constraint("DistanceX", -1, 1, 17, 3, Q("125.067938 mm")),
    Sketcher.Constraint("DistanceY", 17, 3, -1, 1, Q("37.248921 mm")),
    Sketcher.Constraint("DistanceY", 18, 3, -1, 1, Q("114.010952 mm")),
    Sketcher.Constraint("DistanceX", -1, 1, 19, 3, Q("125.253969 mm")),
    Sketcher.Constraint("DistanceX", -1, 1, 21, 3, Q("262.862192 mm")),
    Sketcher.Constraint("DistanceX", -1, 1, 22, 3, Q("261.817821 mm")),
    Sketcher.Constraint("DistanceX", 25, 3, -1, 1, Q("46.14222 mm")),
    Sketcher.Constraint("DistanceY", -1, 1, 26, 3, Q("200.503118 mm")),
    Sketcher.Constraint("DistanceY", -1, 1, 27, 3, Q("137.067938 mm")),
    Sketcher.Constraint("DistanceX", 30, 3, -1, 1, Q("38.293051 mm")),
    Sketcher.Constraint("DistanceY", -1, 1, 31, 3, Q("271.695881 mm")),
    Sketcher.Constraint("DistanceY", 2, 3, 7, 3, Q("8.63323 mm")),
    Sketcher.Constraint("DistanceY", 9, 3, 7, 3, Q("239.24614 mm")),
    Sketcher.Constraint("DistanceX", 9, 3, 10, 3, Q("86.014491 mm")),
    Sketcher.Constraint("DistanceX", 5, 3, 10, 3, Q("245.012829 mm")),
    Sketcher.Constraint("DistanceY", 10, 3, 5, 3, Q("245.012829 mm")),
    Sketcher.Constraint("DistanceX", 13, 3, 17, 3, Q("107.243791 mm")),
    Sketcher.Constraint("DistanceX", 13, 3, 18, 3, Q("172.574958 mm")),
    Sketcher.Constraint("DistanceY", 17, 3, 19, 3, Q("72.899718 mm")),
    Sketcher.Constraint("DistanceY", 20, 3, 19, 3, Q("9.039369 mm")),
    Sketcher.Constraint("DistanceX", 18, 3, 20, 3, Q("87.58309 mm")),
    Sketcher.Constraint("DistanceX", 23, 3, 20, 3, Q("0.973718 mm")),
    Sketcher.Constraint("DistanceY", 23, 3, 20, 3, Q("55.262672 mm")),
    Sketcher.Constraint("DistanceX", 7, 3, 24, 3, Q("170.537961 mm")),
    Sketcher.Constraint("DistanceY", 7, 3, 25, 3, Q("97.616779 mm")),
    Sketcher.Constraint("DistanceY", 25, 3, 26, 3, Q("66.428962 mm")),
    Sketcher.Constraint("DistanceX", 27, 3, 20, 3, Q("112.035389 mm")),
    Sketcher.Constraint("DistanceX", 28, 3, 27, 3, Q("148.532681 mm")),
    Sketcher.Constraint("DistanceY", 31, 3, 29, 3, Q("15.843112 mm")),
])
pad4 = body.newObject("PartDesign::Pad", "Pad003")
pad4.Profile = sketch9
pad4.Length = 6
pad4.Reversed = True

doc.recompute()
